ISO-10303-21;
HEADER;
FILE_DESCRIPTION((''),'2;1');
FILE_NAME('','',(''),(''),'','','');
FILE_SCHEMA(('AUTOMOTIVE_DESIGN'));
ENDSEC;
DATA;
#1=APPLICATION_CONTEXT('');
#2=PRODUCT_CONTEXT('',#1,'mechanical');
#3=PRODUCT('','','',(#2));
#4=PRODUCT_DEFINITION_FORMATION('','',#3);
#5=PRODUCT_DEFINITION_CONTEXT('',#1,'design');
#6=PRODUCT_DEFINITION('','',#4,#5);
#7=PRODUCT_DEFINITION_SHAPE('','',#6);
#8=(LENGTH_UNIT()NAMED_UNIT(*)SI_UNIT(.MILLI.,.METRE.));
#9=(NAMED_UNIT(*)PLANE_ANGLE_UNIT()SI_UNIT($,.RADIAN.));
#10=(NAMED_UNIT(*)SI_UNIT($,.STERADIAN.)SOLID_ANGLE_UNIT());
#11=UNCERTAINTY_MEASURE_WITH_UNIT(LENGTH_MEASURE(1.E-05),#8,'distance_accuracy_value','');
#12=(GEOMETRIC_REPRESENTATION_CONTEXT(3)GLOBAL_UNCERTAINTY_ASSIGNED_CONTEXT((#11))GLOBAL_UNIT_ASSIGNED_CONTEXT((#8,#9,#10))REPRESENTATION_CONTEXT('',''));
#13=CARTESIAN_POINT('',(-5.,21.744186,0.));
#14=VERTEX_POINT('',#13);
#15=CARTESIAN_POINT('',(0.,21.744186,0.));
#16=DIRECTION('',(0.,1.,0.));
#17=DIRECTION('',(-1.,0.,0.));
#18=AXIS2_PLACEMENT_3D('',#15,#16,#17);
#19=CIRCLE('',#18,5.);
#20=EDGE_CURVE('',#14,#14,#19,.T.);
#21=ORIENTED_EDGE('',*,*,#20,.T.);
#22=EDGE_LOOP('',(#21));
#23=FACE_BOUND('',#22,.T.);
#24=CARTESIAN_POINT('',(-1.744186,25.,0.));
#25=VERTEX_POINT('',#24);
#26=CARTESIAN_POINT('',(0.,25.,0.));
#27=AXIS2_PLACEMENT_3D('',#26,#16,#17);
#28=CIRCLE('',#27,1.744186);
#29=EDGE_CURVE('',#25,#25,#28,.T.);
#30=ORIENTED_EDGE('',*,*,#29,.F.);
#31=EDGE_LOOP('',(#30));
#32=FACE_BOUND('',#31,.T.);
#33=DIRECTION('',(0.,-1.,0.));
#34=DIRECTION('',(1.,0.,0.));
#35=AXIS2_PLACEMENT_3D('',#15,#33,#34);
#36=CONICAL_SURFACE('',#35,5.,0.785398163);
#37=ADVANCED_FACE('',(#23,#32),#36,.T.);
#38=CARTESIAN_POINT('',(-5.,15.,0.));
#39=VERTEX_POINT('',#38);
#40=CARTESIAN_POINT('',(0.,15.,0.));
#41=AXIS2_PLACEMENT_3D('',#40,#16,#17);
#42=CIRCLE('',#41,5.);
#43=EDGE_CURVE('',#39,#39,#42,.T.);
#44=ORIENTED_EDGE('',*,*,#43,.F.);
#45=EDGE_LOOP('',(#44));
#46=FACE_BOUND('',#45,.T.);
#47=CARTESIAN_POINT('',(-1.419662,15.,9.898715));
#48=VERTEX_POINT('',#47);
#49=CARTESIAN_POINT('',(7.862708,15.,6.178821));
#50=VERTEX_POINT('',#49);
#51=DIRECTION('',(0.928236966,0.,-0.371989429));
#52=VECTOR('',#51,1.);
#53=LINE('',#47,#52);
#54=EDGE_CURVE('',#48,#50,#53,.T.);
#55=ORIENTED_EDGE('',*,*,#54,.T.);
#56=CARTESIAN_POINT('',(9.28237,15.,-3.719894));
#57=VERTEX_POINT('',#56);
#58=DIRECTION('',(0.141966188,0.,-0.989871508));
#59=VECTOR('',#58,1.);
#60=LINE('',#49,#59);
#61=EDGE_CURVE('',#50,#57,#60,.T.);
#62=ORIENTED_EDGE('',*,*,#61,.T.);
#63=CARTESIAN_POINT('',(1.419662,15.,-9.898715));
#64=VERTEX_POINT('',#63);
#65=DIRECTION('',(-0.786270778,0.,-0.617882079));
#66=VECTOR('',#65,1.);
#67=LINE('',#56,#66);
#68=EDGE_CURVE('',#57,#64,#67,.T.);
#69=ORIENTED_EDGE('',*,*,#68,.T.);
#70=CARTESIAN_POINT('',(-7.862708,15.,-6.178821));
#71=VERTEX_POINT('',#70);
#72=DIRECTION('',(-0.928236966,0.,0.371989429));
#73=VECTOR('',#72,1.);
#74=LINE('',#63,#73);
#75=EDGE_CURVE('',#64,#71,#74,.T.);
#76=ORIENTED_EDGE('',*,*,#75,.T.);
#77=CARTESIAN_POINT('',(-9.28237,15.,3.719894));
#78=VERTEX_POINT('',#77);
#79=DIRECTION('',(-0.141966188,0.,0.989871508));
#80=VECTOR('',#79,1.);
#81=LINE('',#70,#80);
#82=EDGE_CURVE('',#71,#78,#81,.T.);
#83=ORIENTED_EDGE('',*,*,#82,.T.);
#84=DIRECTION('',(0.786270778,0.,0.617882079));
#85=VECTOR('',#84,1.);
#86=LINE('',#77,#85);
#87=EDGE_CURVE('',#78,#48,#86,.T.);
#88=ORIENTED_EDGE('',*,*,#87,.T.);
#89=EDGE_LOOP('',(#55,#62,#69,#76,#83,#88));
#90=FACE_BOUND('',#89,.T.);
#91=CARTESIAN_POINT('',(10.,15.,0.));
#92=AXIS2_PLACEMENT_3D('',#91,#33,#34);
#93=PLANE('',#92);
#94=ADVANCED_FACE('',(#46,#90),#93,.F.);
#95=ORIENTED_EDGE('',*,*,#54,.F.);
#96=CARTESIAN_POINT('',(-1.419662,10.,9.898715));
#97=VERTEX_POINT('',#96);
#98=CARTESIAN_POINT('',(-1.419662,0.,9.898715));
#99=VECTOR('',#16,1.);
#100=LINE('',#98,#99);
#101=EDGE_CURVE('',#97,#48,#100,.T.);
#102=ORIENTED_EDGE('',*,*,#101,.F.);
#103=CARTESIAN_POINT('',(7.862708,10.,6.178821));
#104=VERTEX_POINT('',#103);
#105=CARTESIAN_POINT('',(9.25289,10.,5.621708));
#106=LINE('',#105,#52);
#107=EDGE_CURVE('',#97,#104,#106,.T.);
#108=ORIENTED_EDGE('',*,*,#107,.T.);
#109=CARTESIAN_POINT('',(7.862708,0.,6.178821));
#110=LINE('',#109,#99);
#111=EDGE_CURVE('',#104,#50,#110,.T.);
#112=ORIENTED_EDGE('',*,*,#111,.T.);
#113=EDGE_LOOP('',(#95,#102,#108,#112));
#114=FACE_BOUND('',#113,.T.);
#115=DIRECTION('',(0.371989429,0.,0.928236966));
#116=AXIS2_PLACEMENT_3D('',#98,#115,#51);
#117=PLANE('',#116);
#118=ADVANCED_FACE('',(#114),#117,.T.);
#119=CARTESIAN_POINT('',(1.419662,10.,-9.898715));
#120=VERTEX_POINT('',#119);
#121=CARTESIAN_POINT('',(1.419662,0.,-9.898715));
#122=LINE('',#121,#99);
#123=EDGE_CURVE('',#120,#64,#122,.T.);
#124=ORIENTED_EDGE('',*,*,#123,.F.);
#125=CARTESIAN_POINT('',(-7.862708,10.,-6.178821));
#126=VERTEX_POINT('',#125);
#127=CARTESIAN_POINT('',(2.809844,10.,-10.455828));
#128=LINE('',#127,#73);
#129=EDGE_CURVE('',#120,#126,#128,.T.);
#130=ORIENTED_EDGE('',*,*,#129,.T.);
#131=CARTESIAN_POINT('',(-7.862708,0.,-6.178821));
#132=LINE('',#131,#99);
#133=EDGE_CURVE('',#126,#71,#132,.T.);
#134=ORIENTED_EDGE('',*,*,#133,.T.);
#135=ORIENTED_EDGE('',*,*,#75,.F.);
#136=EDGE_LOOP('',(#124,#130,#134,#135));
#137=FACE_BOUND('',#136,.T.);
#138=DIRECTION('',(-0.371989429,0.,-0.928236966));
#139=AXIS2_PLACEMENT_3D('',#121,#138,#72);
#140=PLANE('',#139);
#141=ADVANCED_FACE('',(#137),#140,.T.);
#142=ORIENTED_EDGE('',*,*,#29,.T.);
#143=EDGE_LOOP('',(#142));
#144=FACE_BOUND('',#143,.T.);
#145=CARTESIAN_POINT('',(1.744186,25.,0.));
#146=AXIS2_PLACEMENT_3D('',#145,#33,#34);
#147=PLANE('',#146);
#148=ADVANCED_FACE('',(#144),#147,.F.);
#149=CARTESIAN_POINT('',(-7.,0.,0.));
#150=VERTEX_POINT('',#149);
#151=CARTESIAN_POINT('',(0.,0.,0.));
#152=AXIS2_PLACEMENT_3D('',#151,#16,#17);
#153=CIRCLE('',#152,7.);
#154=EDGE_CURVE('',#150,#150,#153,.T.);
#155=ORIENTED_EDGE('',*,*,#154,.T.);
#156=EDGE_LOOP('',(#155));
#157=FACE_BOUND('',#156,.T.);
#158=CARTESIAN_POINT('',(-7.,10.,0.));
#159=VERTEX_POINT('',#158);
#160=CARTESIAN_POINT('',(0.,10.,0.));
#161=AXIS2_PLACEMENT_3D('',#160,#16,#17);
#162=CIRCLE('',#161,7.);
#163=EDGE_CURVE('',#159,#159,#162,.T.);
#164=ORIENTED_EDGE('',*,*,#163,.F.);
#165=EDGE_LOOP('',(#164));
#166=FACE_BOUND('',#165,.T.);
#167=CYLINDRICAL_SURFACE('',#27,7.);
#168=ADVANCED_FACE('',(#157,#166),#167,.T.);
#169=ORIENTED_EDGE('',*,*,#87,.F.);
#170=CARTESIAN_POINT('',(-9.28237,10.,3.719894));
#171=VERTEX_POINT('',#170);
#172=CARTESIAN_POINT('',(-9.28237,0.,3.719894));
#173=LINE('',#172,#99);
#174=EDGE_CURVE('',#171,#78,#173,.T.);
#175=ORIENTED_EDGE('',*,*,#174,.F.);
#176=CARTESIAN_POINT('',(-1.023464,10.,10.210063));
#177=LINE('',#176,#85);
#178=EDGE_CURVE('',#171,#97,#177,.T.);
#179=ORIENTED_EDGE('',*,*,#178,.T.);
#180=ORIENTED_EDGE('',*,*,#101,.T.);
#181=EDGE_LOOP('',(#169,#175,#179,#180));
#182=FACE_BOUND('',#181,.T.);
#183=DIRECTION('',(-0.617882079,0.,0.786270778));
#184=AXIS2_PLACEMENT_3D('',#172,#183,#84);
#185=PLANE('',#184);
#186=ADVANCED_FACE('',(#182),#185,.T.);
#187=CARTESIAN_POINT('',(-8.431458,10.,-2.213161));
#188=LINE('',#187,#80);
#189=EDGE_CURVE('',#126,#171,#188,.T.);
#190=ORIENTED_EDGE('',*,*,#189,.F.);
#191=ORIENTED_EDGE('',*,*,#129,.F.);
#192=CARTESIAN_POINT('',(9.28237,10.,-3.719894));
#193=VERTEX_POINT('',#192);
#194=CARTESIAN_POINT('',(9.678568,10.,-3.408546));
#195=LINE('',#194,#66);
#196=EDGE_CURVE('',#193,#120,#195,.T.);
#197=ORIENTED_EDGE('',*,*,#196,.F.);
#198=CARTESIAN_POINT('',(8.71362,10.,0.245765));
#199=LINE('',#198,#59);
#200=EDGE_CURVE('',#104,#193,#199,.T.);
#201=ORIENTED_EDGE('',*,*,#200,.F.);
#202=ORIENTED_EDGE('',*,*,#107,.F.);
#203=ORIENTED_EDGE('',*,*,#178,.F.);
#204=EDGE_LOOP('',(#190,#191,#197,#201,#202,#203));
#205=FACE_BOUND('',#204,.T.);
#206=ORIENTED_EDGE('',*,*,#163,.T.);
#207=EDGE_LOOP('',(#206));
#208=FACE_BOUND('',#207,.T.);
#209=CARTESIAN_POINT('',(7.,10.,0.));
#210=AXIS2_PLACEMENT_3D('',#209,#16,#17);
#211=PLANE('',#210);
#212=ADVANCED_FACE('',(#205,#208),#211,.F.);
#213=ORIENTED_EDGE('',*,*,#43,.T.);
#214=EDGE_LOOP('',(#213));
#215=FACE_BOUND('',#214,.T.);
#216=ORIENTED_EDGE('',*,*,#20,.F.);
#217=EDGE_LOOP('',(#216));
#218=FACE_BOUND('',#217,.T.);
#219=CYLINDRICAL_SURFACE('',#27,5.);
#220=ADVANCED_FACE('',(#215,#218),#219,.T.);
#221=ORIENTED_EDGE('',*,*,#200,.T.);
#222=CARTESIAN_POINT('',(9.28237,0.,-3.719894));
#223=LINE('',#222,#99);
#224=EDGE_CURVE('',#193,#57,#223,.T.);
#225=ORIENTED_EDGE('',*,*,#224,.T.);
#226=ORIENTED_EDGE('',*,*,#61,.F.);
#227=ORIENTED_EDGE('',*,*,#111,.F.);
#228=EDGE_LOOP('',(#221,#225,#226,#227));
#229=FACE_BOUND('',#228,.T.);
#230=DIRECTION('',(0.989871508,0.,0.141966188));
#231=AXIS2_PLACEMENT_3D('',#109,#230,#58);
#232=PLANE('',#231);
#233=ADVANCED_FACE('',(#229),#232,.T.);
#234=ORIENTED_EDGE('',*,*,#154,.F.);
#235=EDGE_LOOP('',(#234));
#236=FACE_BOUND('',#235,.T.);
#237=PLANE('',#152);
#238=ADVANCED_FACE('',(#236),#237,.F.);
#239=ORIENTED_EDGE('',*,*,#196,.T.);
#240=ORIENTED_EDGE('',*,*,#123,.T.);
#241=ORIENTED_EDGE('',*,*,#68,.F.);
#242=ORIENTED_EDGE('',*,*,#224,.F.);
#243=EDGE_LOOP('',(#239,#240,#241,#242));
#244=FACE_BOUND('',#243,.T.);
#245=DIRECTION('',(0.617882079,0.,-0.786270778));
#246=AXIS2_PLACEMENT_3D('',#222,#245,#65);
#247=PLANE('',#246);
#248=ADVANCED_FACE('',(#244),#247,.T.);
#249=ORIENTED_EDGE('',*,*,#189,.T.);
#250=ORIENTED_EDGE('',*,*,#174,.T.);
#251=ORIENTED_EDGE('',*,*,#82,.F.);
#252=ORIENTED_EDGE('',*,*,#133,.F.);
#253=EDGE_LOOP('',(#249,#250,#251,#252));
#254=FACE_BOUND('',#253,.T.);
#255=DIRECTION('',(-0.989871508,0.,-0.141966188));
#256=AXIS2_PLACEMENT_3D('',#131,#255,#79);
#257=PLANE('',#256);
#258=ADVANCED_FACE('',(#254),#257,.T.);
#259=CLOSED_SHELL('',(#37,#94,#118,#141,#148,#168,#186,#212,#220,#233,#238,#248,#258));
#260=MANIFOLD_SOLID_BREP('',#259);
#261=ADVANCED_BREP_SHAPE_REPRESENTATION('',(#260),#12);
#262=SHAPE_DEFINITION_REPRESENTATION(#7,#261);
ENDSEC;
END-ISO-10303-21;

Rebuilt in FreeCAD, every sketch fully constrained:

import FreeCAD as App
import Part
import Sketcher
Q = App.Units.Quantity


def add_polygon(sketch, points):
    """Adds a closed chain of lines whose ends are joined by coincident constraints."""
    first, n = sketch.GeometryCount, len(points)
    for a, b in zip(points, points[1:] + points[:1]):
        sketch.addGeometry(Part.LineSegment(App.Vector(*a, 0), App.Vector(*b, 0)), False)
    for i in range(n):
        sketch.addConstraint(Sketcher.Constraint("Coincident", first + i, 2, first + (i + 1) % n, 1))

doc = App.newDocument("Part")
body = doc.addObject("PartDesign::Body", "Body")

# Sketch on XY plane
sketch1 = doc.addObject("Sketcher::SketchObject", "Sketch")
body.addObject(sketch1)
sketch1.AttachmentSupport = (doc.XY_Plane, [""])
sketch1.MapMode = "FlatFace"
add_polygon(sketch1, [(0, 0), (7, 0), (7, 10), (10, 10), (10, 15), (5, 15), (5, 21.7), (1.7, 25), (0, 25)])  # lines 0-8
sketch1.addConstraint([
    Sketcher.Constraint("Horizontal", 0),
    Sketcher.Constraint("Vertical", 1),
    Sketcher.Constraint("Horizontal", 2),
    Sketcher.Constraint("Vertical", 3),
    Sketcher.Constraint("Horizontal", 4),
    Sketcher.Constraint("Vertical", 5),
    Sketcher.Constraint("Horizontal", 7),
    Sketcher.Constraint("Vertical", 8),
    Sketcher.Constraint("Coincident", 8, 2, -1, 1),
    Sketcher.Constraint("Equal", 4, 3),
    Sketcher.Constraint("DistanceX", 0, 1, 0, 2, Q("7 mm")),
    Sketcher.Constraint("DistanceX", 2, 1, 2, 2, Q("3 mm")),
    Sketcher.Constraint("DistanceX", 4, 2, 4, 1, Q("5 mm")),
    Sketcher.Constraint("DistanceY", 1, 1, 1, 2, Q("10 mm")),
    Sketcher.Constraint("DistanceY", 8, 2, 8, 1, Q("25 mm")),
    Sketcher.Constraint("Angle", 6, Q("135 deg")),
    Sketcher.Constraint("DistanceX", 7, 2, 7, 1, Q("1.744186 mm")),
])
revolution = doc.addObject("PartDesign::Revolution", "Revolution")
body.addObject(revolution)
revolution.Profile = sketch1
revolution.ReferenceAxis = (sketch1, ["V_Axis"])
revolution.Angle = 360

# Sketch on XZ plane
sketch2 = doc.addObject("Sketcher::SketchObject", "Sketch001")
body.addObject(sketch2)
sketch2.AttachmentSupport = (doc.XZ_Plane, [""])
sketch2.MapMode = "FlatFace"
sketch2.AttachmentOffset = App.Placement(App.Vector(0, 0, -15), App.Rotation())
add_polygon(sketch2, [(-15, -15), (-15, 15), (15, 15), (15, -15)])  # lines 0-3
add_polygon(sketch2, [(9, -4), (8, 6), (-1, 10), (-9, 4), (-8, -6), (1, -10)])  # lines 4-9
sketch2.addConstraint([
    Sketcher.Constraint("Vertical", 0),
    Sketcher.Constraint("Horizontal", 1),
    Sketcher.Constraint("Vertical", 2),
    Sketcher.Constraint("Horizontal", 3),
    Sketcher.Constraint("Symmetric", 0, 2, 2, 2, -1, 1),
    Sketcher.Constraint("Symmetric", 4, 2, 7, 2, -1, 1),
    Sketcher.Constraint("Symmetric", 5, 2, 8, 2, -1, 1),
    Sketcher.Constraint("Symmetric", 6, 2, 9, 2, -1, 1),
    Sketcher.Constraint("Equal", 3, 0),
    Sketcher.Constraint("Equal", 4, 5),
    Sketcher.Constraint("Equal", 5, 6),
    Sketcher.Constraint("Distance", 4, Q("10 mm")),
    Sketcher.Constraint("DistanceX", 1, 1, 1, 2, Q("29.55 mm")),
    Sketcher.Constraint("DistanceY", -1, 1, 4, 2, Q("6.178821 mm")),
    Sketcher.Constraint("DistanceX", 5, 2, -1, 1, Q("1.419662 mm")),
    Sketcher.Constraint("DistanceX", 6, 2, -1, 1, Q("9.28237 mm")),
])
pocket1 = doc.addObject("PartDesign::Pocket", "Pocket")
body.addObject(pocket1)
pocket1.Profile = sketch2
pocket1.Type = "ThroughAll"
pocket1.Reversed = True

doc.recompute()
